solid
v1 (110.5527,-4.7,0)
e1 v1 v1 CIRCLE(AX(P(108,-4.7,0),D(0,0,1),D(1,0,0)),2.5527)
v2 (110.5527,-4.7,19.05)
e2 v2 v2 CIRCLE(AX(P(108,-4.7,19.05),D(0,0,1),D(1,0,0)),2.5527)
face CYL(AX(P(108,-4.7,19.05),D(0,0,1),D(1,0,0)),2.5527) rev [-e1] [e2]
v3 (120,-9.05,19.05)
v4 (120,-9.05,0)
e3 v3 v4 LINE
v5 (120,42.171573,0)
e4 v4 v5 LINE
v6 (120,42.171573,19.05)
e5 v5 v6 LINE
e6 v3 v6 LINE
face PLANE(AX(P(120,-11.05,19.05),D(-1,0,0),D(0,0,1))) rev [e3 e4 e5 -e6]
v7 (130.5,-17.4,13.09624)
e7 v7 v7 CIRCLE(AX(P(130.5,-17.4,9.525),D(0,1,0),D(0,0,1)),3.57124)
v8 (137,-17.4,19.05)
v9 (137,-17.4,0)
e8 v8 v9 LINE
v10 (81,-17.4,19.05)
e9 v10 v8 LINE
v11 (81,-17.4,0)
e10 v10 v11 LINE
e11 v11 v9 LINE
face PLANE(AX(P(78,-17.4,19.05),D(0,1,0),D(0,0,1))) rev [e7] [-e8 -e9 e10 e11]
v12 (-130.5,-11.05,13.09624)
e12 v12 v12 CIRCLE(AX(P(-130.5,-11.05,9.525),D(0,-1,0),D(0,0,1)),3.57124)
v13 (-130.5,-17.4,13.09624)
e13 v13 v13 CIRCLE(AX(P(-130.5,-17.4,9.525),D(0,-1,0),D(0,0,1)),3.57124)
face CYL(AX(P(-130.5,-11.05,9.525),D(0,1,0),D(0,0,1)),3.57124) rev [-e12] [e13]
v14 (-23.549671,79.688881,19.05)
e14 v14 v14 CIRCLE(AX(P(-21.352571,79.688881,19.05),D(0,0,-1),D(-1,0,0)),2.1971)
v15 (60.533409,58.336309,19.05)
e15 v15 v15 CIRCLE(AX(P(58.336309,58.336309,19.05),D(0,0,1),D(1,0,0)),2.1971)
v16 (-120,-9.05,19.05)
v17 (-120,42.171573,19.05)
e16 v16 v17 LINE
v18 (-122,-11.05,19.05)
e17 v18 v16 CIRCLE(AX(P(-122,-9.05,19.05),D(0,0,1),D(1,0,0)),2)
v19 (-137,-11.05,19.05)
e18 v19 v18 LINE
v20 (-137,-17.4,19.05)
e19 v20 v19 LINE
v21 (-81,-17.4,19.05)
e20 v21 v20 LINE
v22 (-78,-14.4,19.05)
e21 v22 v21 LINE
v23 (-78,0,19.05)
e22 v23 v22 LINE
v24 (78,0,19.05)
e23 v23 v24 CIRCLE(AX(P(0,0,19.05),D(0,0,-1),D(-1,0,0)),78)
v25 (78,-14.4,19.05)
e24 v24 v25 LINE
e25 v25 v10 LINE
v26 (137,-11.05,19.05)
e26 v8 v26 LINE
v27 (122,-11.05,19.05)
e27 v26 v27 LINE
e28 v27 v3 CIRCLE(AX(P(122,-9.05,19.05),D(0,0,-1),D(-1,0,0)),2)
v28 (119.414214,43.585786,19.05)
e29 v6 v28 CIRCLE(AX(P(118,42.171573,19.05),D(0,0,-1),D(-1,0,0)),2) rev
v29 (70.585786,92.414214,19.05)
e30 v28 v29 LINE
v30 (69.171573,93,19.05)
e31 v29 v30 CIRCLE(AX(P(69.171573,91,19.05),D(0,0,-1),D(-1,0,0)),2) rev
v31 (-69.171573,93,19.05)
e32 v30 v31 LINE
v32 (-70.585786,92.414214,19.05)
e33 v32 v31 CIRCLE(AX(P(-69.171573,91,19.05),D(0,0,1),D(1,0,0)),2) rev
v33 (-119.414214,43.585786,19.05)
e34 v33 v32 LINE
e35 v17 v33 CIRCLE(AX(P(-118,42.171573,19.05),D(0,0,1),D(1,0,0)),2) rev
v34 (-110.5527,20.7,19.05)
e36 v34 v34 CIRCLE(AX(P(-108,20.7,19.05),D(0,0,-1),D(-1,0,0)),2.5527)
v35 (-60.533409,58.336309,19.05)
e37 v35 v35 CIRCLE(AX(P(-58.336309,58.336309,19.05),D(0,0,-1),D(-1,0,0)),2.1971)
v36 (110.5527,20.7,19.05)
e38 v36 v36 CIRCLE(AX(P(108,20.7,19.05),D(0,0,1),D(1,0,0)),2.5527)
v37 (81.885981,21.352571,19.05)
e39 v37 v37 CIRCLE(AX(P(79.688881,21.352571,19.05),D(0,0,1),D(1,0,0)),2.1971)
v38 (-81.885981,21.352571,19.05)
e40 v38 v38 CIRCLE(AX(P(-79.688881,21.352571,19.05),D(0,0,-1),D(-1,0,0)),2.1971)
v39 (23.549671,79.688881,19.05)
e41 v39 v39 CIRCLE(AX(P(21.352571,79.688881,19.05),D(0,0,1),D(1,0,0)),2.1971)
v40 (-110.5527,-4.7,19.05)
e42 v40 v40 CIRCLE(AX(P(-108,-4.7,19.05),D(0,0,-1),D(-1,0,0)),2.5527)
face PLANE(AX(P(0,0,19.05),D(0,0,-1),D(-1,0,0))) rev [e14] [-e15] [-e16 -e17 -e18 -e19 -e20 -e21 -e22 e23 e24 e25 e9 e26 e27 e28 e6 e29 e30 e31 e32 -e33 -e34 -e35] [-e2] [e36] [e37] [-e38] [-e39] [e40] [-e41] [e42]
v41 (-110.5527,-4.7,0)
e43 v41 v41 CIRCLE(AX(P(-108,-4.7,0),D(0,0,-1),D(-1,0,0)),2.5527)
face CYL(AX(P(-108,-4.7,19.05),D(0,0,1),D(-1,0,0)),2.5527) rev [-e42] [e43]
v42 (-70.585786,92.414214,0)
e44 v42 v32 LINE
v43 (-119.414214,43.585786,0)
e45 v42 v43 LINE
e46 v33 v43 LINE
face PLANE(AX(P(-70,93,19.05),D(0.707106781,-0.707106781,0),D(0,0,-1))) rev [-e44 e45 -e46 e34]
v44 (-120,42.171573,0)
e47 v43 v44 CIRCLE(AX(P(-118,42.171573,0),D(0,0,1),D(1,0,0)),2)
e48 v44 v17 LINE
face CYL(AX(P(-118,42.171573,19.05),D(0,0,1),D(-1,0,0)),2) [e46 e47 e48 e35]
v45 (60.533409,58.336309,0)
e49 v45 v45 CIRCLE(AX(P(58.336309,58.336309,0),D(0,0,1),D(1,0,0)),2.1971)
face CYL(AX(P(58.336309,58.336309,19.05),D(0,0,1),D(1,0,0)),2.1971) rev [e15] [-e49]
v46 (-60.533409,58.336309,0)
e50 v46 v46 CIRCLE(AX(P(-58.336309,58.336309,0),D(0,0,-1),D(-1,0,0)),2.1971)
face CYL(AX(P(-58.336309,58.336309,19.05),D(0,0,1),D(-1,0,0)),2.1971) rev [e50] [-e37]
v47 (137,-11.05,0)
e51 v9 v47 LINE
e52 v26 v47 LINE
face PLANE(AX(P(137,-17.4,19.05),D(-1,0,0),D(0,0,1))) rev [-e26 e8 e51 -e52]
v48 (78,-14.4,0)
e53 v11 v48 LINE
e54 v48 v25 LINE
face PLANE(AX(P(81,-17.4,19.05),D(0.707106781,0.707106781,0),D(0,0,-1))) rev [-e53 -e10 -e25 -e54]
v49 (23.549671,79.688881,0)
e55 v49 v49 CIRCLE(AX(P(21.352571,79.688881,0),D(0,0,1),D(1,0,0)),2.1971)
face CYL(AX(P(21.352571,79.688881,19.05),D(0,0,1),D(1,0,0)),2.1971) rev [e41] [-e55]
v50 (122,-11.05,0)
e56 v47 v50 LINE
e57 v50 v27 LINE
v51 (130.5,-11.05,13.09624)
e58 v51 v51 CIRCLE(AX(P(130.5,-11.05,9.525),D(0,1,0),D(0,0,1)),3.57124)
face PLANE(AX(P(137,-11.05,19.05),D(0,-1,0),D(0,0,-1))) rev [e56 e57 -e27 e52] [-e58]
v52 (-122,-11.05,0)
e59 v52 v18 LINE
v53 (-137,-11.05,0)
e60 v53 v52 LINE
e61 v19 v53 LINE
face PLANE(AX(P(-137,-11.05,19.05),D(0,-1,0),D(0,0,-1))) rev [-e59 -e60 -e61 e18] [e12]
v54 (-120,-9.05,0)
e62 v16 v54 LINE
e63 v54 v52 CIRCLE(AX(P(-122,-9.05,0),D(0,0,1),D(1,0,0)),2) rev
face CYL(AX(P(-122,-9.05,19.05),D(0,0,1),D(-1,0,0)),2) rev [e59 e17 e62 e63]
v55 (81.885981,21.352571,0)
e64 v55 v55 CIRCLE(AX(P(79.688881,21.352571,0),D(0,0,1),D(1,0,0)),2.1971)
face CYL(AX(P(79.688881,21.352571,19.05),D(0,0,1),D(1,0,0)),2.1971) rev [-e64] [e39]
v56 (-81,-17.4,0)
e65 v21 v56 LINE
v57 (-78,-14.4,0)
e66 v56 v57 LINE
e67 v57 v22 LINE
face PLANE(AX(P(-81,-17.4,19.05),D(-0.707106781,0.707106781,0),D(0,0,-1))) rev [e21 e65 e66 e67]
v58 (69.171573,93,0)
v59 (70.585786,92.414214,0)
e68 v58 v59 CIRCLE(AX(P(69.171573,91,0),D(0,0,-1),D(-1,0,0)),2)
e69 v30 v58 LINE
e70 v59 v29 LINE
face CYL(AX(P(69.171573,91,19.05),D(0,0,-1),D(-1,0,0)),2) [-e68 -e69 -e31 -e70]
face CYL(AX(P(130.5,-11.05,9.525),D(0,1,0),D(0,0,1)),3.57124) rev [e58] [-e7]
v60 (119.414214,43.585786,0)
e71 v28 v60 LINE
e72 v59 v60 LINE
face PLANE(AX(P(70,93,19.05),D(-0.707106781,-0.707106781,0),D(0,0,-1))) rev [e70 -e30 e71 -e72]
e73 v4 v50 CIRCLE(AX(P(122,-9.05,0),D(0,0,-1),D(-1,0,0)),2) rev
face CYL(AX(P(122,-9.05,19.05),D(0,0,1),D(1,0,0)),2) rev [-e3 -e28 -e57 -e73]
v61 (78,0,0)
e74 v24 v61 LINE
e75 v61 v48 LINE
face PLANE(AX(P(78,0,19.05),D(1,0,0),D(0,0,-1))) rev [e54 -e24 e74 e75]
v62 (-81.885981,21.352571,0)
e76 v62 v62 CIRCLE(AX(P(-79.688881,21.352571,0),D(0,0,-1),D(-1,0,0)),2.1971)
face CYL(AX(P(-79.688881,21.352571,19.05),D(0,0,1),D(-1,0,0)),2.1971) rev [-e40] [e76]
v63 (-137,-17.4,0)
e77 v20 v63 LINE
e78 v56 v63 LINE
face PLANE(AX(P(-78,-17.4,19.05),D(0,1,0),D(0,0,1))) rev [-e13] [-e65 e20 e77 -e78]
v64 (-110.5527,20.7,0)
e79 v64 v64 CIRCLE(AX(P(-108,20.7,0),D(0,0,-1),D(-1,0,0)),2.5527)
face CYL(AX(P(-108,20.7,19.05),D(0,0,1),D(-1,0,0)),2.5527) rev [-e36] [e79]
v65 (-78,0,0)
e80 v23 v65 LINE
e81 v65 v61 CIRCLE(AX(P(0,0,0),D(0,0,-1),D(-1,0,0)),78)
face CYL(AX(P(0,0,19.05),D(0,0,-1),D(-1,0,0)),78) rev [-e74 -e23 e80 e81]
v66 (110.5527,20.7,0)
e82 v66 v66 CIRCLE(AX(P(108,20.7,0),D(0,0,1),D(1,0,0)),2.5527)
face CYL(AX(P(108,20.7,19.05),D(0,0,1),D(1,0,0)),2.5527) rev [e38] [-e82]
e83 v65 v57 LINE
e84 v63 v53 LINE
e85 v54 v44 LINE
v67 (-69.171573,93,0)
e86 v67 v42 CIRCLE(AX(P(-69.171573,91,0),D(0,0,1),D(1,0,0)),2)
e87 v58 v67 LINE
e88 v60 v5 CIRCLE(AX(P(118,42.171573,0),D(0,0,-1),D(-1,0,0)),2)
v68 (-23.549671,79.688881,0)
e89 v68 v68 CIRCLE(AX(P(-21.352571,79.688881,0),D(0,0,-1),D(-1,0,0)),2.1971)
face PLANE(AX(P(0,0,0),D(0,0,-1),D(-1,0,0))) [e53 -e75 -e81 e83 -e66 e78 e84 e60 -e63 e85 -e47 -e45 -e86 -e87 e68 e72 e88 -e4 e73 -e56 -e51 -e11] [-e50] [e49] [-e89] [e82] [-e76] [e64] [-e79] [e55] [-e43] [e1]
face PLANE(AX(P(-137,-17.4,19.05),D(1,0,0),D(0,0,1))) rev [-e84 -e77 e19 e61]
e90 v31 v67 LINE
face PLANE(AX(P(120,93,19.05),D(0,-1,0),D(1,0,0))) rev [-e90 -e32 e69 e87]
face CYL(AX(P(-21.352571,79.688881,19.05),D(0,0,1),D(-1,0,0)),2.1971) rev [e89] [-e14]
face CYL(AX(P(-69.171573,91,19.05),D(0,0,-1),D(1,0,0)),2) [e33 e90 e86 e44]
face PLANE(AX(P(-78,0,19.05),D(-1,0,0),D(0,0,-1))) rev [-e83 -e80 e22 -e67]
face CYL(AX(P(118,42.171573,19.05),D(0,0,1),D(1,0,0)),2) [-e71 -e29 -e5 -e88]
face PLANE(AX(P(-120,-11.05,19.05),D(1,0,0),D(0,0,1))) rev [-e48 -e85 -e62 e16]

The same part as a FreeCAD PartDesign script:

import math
import FreeCAD as App
import Part
import Sketcher
from FreeCAD import Vector
Q = App.Units.Quantity


def edges_at(feature, points):
    """Names of the edges that pass closest to the given points."""
    edges = feature.Shape.Edges
    near = lambda p: min(range(len(edges)), key=lambda i: edges[i].distToShape(Part.Vertex(*p))[0])
    return sorted({f"Edge{near(p) + 1}" for p in points})

doc = App.newDocument("Part")
body = doc.addObject("PartDesign::Body", "Body")

sketch1 = doc.addObject("Sketcher::SketchObject", "Sketch")
body.addObject(sketch1)
sketch1.AttachmentSupport = (doc.XY_Plane, [""])
sketch1.MapMode = "FlatFace"
sketch1.addGeometry([
    Part.LineSegment(Vector(78, 0, 0), Vector(78, -17, 0)),
    Part.LineSegment(Vector(78, -17, 0), Vector(137, -17, 0)),
    Part.LineSegment(Vector(137, -17, 0), Vector(137, -11, 0)),
    Part.LineSegment(Vector(137, -11, 0), Vector(120, -11, 0)),
    Part.LineSegment(Vector(120, -11, 0), Vector(120, 93, 0)),
    Part.LineSegment(Vector(120, 93, 0), Vector(0, 93, 0)),
    Part.LineSegment(Vector(0, 93, 0), Vector(0, 78, 0)),
    Part.ArcOfCircle(Part.Circle(Vector(0, 0, 0), Vector(0, 0, 1), 78), math.radians(0), math.radians(90)),
], False)
sketch1.addConstraint([
    Sketcher.Constraint("Coincident", 0, 2, 1, 1),
    Sketcher.Constraint("Coincident", 1, 2, 2, 1),
    Sketcher.Constraint("Coincident", 2, 2, 3, 1),
    Sketcher.Constraint("Coincident", 3, 2, 4, 1),
    Sketcher.Constraint("Coincident", 4, 2, 5, 1),
    Sketcher.Constraint("Coincident", 5, 2, 6, 1),
    Sketcher.Constraint("Coincident", 6, 2, 7, 2),
    Sketcher.Constraint("Tangent", 7, 1, 0, 1),
    Sketcher.Constraint("Vertical", 0),
    Sketcher.Constraint("Horizontal", 1),
    Sketcher.Constraint("Vertical", 2),
    Sketcher.Constraint("Horizontal", 3),
    Sketcher.Constraint("Vertical", 4),
    Sketcher.Constraint("Horizontal", 5),
    Sketcher.Constraint("Vertical", 6),
    Sketcher.Constraint("Coincident", 7, 3, -1, 1),
    Sketcher.Constraint("PointOnObject", 5, 2, -2),
    Sketcher.Constraint("Radius", 7, Q("78 mm")),
    Sketcher.Constraint("DistanceX", 1, 1, 1, 2, Q("59 mm")),
    Sketcher.Constraint("DistanceX", 3, 2, 3, 1, Q("17 mm")),
    Sketcher.Constraint("DistanceY", 6, 2, 6, 1, Q("15 mm")),
    Sketcher.Constraint("DistanceY", 0, 2, 0, 1, Q("17.4 mm")),
    Sketcher.Constraint("DistanceY", 2, 1, 2, 2, Q("6.35 mm")),
])
pad1 = doc.addObject("PartDesign::Pad", "Pad")
body.addObject(pad1)
pad1.Profile = sketch1
pad1.Length = 19.05

sketch2 = doc.addObject("Sketcher::SketchObject", "Sketch001")
body.addObject(sketch2)
sketch2.AttachmentSupport = (doc.XY_Plane, [""])
sketch2.MapMode = "FlatFace"
sketch2.AttachmentOffset = App.Placement(Vector(0, 0, 19.05), App.Rotation())
sketch2.addGeometry([
    Part.Circle(Vector(21.4, 79.7, 0), Vector(0, 0, 1), 2.2),
    Part.Circle(Vector(58.3, 58.3, 0), Vector(0, 0, 1), 2.2),
    Part.Circle(Vector(79.7, 21.4, 0), Vector(0, 0, 1), 2.2),
], False)
sketch2.addConstraint([
    Sketcher.Constraint("Equal", 0, 1),
    Sketcher.Constraint("Equal", 1, 2),
    Sketcher.Constraint("Diameter", 0, Q("4.3942 mm")),
    Sketcher.Constraint("DistanceX", -1, 1, 0, 3, Q("21.352571 mm")),
    Sketcher.Constraint("DistanceY", -1, 1, 0, 3, Q("79.688881 mm")),
    Sketcher.Constraint("DistanceX", -1, 1, 1, 3, Q("58.336309 mm")),
    Sketcher.Constraint("DistanceY", -1, 1, 1, 3, Q("58.336309 mm")),
    Sketcher.Constraint("DistanceX", -1, 1, 2, 3, Q("79.688881 mm")),
    Sketcher.Constraint("DistanceY", -1, 1, 2, 3, Q("21.352571 mm")),
])
doc.recompute()
hole = doc.addObject("PartDesign::Hole", "Hole")
body.addObject(hole)
hole.Profile = sketch2
hole.ThreadType = "None"
hole.Diameter = 4.3942
hole.DepthType = "ThroughAll"

sketch3 = doc.addObject("Sketcher::SketchObject", "Sketch002")
body.addObject(sketch3)
sketch3.AttachmentSupport = (doc.XY_Plane, [""])
sketch3.MapMode = "FlatFace"
sketch3.AttachmentOffset = App.Placement(Vector(0, 0, 19.05), App.Rotation())
sketch3.addGeometry([
    Part.Circle(Vector(108, 20.7, 0), Vector(0, 0, 1), 2.6),
    Part.Circle(Vector(108, -4.7, 0), Vector(0, 0, 1), 2.6),
], False)
sketch3.addConstraint([
    Sketcher.Constraint("Equal", 0, 1),
    Sketcher.Constraint("Vertical", 0, 3, 1, 3),
    Sketcher.Constraint("DistanceX", -1, 1, 0, 3, Q("108 mm")),
    Sketcher.Constraint("Diameter", 0, Q("5.1054 mm")),
    Sketcher.Constraint("DistanceY", -1, 1, 0, 3, Q("20.7 mm")),
    Sketcher.Constraint("DistanceY", 1, 3, -1, 1, Q("4.7 mm")),
])
doc.recompute()
hole2 = doc.addObject("PartDesign::Hole", "Hole001")
body.addObject(hole2)
hole2.Profile = sketch3
hole2.ThreadType = "None"
hole2.Diameter = 5.1054
hole2.DepthType = "ThroughAll"

sketch4 = doc.addObject("Sketcher::SketchObject", "Sketch003")
body.addObject(sketch4)
sketch4.AttachmentSupport = (doc.XZ_Plane, [""])
sketch4.MapMode = "FlatFace"
sketch4.AttachmentOffset = App.Placement(Vector(0, 0, 11.05), App.Rotation())
sketch4.addGeometry(Part.Circle(Vector(130.5, 9.5, 0), Vector(0, 0, 1), 3.6), False)
sketch4.addConstraint([
    Sketcher.Constraint("DistanceX", -1, 1, 0, 3, Q("130.5 mm")),
    Sketcher.Constraint("Diameter", 0, Q("7.14248 mm")),
    Sketcher.Constraint("DistanceY", -1, 1, 0, 3, Q("9.525 mm")),
])
doc.recompute()
hole3 = doc.addObject("PartDesign::Hole", "Hole002")
body.addObject(hole3)
hole3.Profile = sketch4
hole3.ThreadType = "None"
hole3.Diameter = 7.14248
hole3.DepthType = "Dimension"
hole3.Depth = 12.7
hole3.DrillPoint = "Angled"
hole3.DrillPointAngle = 118
hole3.Reversed = True
doc.recompute()

chamfer = doc.addObject("PartDesign::Chamfer", "Chamfer")
body.addObject(chamfer)
chamfer.Base = (hole3, edges_at(hole3, [(78, -17.4, 9.525)]))
chamfer.Size = 3
doc.recompute()

chamfer2 = doc.addObject("PartDesign::Chamfer", "Chamfer001")
body.addObject(chamfer2)
chamfer2.Base = (chamfer, edges_at(chamfer, [(120, 93, 9.525)]))
chamfer2.Size = 50
doc.recompute()

fillet = doc.addObject("PartDesign::Fillet", "Fillet")
body.addObject(fillet)
fillet.Base = (chamfer2, edges_at(chamfer2, [(120, -11.05, 9.525), (70, 93, 9.525), (120, 43, 9.525)]))
fillet.Radius = 2
body2 = doc.addObject("PartDesign::Body", "Body001")
doc.recompute()

body2.BaseFeature = body
doc.recompute()

mirroring = doc.addObject("Part::Mirroring", "Mirroring")
mirroring.Source = body
mirroring.Base = Vector(0, 0, 0)
mirroring.Normal = Vector(1, 0, 0)
body3 = doc.addObject("PartDesign::Body", "Body002")
body3.BaseFeature = mirroring
boolean = doc.addObject("PartDesign::Boolean", "Boolean")
body2.addObject(boolean)
boolean.Type = "Fuse"
boolean.addObjects([body3])
doc.recompute()
mirroring.Visibility = False

doc.recompute()
